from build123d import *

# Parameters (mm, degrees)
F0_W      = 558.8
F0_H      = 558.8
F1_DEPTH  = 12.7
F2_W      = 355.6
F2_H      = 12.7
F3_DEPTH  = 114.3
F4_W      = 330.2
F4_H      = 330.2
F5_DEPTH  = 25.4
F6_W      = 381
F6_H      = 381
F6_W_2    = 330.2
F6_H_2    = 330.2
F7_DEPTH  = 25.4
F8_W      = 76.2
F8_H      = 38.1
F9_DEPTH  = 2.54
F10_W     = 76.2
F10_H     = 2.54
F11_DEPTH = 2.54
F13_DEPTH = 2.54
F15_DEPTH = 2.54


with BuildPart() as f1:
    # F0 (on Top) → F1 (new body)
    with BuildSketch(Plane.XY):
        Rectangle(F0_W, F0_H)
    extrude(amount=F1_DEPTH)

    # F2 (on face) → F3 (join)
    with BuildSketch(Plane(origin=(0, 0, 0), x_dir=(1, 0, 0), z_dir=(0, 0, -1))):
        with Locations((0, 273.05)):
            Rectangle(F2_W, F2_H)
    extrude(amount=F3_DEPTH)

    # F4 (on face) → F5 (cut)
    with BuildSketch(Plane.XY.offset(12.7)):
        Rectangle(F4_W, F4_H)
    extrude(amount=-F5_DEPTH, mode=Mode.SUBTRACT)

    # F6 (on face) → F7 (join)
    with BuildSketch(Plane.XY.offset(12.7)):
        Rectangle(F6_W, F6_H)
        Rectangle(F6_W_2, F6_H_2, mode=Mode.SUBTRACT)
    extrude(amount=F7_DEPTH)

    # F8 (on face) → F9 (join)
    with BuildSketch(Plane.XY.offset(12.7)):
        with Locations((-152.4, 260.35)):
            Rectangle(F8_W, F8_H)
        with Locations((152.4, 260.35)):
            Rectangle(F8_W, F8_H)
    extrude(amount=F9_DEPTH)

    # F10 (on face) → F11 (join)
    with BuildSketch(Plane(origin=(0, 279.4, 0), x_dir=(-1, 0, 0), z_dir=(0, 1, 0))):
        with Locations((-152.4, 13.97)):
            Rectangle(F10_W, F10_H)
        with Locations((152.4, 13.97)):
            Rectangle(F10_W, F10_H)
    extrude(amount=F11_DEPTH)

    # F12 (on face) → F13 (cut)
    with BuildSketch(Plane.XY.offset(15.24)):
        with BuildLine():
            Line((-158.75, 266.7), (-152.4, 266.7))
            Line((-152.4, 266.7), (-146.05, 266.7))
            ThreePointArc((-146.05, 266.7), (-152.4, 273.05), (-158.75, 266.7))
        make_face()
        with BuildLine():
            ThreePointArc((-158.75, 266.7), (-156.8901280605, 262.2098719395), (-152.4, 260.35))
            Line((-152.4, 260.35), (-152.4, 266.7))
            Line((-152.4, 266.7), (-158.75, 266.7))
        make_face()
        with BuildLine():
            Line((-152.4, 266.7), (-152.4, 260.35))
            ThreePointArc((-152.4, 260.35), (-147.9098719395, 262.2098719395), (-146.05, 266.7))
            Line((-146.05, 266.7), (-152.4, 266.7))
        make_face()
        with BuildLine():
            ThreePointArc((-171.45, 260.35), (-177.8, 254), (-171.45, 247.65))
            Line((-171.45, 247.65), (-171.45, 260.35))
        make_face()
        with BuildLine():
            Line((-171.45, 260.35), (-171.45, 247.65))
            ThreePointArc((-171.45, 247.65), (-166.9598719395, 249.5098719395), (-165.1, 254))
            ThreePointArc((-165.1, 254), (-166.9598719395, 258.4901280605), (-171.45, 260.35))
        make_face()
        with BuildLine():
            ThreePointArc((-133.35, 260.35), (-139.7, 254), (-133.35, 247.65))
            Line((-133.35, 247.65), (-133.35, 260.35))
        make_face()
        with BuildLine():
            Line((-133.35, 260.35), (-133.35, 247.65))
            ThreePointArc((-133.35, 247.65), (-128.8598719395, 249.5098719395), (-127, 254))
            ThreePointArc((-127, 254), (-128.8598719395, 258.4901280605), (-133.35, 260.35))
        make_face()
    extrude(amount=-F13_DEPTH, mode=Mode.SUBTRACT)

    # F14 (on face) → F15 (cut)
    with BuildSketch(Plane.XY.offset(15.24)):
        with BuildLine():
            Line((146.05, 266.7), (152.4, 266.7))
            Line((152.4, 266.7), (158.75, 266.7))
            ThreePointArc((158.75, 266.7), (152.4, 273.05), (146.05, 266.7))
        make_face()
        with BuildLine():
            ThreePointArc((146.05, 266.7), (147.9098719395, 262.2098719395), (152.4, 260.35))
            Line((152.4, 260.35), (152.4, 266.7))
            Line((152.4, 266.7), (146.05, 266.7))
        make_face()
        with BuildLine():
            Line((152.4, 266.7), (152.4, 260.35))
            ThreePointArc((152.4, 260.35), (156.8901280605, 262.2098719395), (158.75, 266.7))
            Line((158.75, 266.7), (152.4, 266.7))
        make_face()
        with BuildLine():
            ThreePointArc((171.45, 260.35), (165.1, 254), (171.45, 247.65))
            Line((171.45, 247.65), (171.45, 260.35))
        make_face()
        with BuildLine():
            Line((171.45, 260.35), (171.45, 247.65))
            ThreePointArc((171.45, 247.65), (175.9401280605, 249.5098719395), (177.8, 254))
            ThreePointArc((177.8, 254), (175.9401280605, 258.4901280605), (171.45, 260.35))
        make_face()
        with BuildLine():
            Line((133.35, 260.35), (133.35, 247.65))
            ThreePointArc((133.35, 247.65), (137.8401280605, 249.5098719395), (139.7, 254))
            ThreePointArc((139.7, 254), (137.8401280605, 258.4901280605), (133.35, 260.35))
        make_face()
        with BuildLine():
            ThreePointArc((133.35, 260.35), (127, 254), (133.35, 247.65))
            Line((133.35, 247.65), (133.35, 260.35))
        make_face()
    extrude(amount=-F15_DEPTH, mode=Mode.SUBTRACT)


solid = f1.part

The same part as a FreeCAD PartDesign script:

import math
import FreeCAD as App
import Part
import Sketcher

V = App.Vector
Q = App.Units.Quantity

doc = App.newDocument("Part")
body = doc.addObject("PartDesign::Body", "Body")

# Sketch on XY plane
sketch1 = doc.addObject("Sketcher::SketchObject", "Sketch")
body.addObject(sketch1)
sketch1.AttachmentSupport = (doc.XY_Plane, [""])
sketch1.MapMode = "FlatFace"
sketch1.addGeometry([
    Part.LineSegment(V(-279.4, 279.4, 0), V(-279.4, -279.4, 0)),
    Part.LineSegment(V(-279.4, -279.4, 0), V(279.4, -279.4, 0)),
    Part.LineSegment(V(279.4, -279.4, 0), V(279.4, 279.4, 0)),
    Part.LineSegment(V(279.4, 279.4, 0), V(-279.4, 279.4, 0)),
], False)
sketch1.addConstraint([
    Sketcher.Constraint("Coincident", 0, 2, 1, 1),
    Sketcher.Constraint("Coincident", 1, 2, 2, 1),
    Sketcher.Constraint("Coincident", 2, 2, 3, 1),
    Sketcher.Constraint("Coincident", 3, 2, 0, 1),
    Sketcher.Constraint("Vertical", 0),
    Sketcher.Constraint("Horizontal", 1),
    Sketcher.Constraint("Vertical", 2),
    Sketcher.Constraint("Horizontal", 3),
    Sketcher.Constraint("Symmetric", 0, 2, 2, 2, -1, 1),
    Sketcher.Constraint("Equal", 3, 0),
    Sketcher.Constraint("DistanceX", 1, 1, 1, 2, Q("22 in")),
])
pad1 = doc.addObject("PartDesign::Pad", "Pad")
body.addObject(pad1)
pad1.Profile = sketch1
pad1.Length = Q("0.5 in")

# Sketch on XY plane
sketch2 = doc.addObject("Sketcher::SketchObject", "Sketch001")
body.addObject(sketch2)
sketch2.AttachmentSupport = (doc.XY_Plane, [""])
sketch2.MapMode = "FlatFace"
sketch2.addGeometry([
    Part.LineSegment(V(-177.8, -279.4, 0), V(-177.8, -266.7, 0)),
    Part.LineSegment(V(-177.8, -266.7, 0), V(177.8, -266.7, 0)),
    Part.LineSegment(V(177.8, -266.7, 0), V(177.8, -279.4, 0)),
    Part.LineSegment(V(177.8, -279.4, 0), V(-177.8, -279.4, 0)),
], False)
sketch2.addConstraint([
    Sketcher.Constraint("Coincident", 0, 2, 1, 1),
    Sketcher.Constraint("Coincident", 1, 2, 2, 1),
    Sketcher.Constraint("Coincident", 2, 2, 3, 1),
    Sketcher.Constraint("Coincident", 3, 2, 0, 1),
    Sketcher.Constraint("Vertical", 0),
    Sketcher.Constraint("Horizontal", 1),
    Sketcher.Constraint("Vertical", 2),
    Sketcher.Constraint("Horizontal", 3),
    Sketcher.Constraint("DistanceX", 1, 1, 1, 2, Q("14 in")),
    Sketcher.Constraint("DistanceY", 0, 1, 0, 2, Q("0.5 in")),
    Sketcher.Constraint("DistanceX", 0, 2, -1, 1, Q("7 in")),
    Sketcher.Constraint("DistanceY", 2, 2, -1, 1, Q("11 in")),
])
pad2 = doc.addObject("PartDesign::Pad", "Pad001")
body.addObject(pad2)
pad2.Profile = sketch2
pad2.Length = Q("4.5 in")
pad2.Reversed = True

# Sketch on XY plane
sketch3 = doc.addObject("Sketcher::SketchObject", "Sketch002")
body.addObject(sketch3)
sketch3.AttachmentSupport = (doc.XY_Plane, [""])
sketch3.MapMode = "FlatFace"
sketch3.AttachmentOffset = App.Placement(V(0, 0, 0.5 * 25.4), App.Rotation())
sketch3.addGeometry([
    Part.LineSegment(V(-165.1, 165.1, 0), V(-165.1, -165.1, 0)),
    Part.LineSegment(V(-165.1, -165.1, 0), V(165.1, -165.1, 0)),
    Part.LineSegment(V(165.1, -165.1, 0), V(165.1, 165.1, 0)),
    Part.LineSegment(V(165.1, 165.1, 0), V(-165.1, 165.1, 0)),
], False)
sketch3.addConstraint([
    Sketcher.Constraint("Coincident", 0, 2, 1, 1),
    Sketcher.Constraint("Coincident", 1, 2, 2, 1),
    Sketcher.Constraint("Coincident", 2, 2, 3, 1),
    Sketcher.Constraint("Coincident", 3, 2, 0, 1),
    Sketcher.Constraint("Vertical", 0),
    Sketcher.Constraint("Horizontal", 1),
    Sketcher.Constraint("Vertical", 2),
    Sketcher.Constraint("Horizontal", 3),
    Sketcher.Constraint("Symmetric", 0, 2, 2, 2, -1, 1),
    Sketcher.Constraint("Equal", 3, 0),
    Sketcher.Constraint("DistanceX", 1, 1, 1, 2, Q("13 in")),
])
pocket1 = doc.addObject("PartDesign::Pocket", "Pocket")
body.addObject(pocket1)
pocket1.Profile = sketch3
pocket1.Length = Q("1 in")

# Sketch on XY plane
sketch4 = doc.addObject("Sketcher::SketchObject", "Sketch003")
body.addObject(sketch4)
sketch4.AttachmentSupport = (doc.XY_Plane, [""])
sketch4.MapMode = "FlatFace"
sketch4.AttachmentOffset = App.Placement(V(0, 0, 0.5 * 25.4), App.Rotation())
sketch4.addGeometry([
    Part.LineSegment(V(-190.5, 190.5, 0), V(-190.5, -190.5, 0)),  # 0
    Part.LineSegment(V(-190.5, -190.5, 0), V(190.5, -190.5, 0)),  # 1
    Part.LineSegment(V(190.5, -190.5, 0), V(190.5, 190.5, 0)),  # 2
    Part.LineSegment(V(190.5, 190.5, 0), V(-190.5, 190.5, 0)),  # 3
    Part.LineSegment(V(165.1, -165.1, 0), V(-165.1, -165.1, 0)),  # 4
    Part.LineSegment(V(-165.1, -165.1, 0), V(-165.1, 165.1, 0)),  # 5
    Part.LineSegment(V(-165.1, 165.1, 0), V(165.1, 165.1, 0)),  # 6
    Part.LineSegment(V(165.1, 165.1, 0), V(165.1, -165.1, 0)),  # 7
], False)
sketch4.addConstraint([
    Sketcher.Constraint("Coincident", 0, 2, 1, 1),
    Sketcher.Constraint("Coincident", 1, 2, 2, 1),
    Sketcher.Constraint("Coincident", 2, 2, 3, 1),
    Sketcher.Constraint("Coincident", 3, 2, 0, 1),
    Sketcher.Constraint("Coincident", 4, 2, 5, 1),
    Sketcher.Constraint("Coincident", 5, 2, 6, 1),
    Sketcher.Constraint("Coincident", 6, 2, 7, 1),
    Sketcher.Constraint("Coincident", 7, 2, 4, 1),
    Sketcher.Constraint("Vertical", 0),
    Sketcher.Constraint("Horizontal", 1),
    Sketcher.Constraint("Vertical", 2),
    Sketcher.Constraint("Horizontal", 3),
    Sketcher.Constraint("Horizontal", 4),
    Sketcher.Constraint("Vertical", 5),
    Sketcher.Constraint("Horizontal", 6),
    Sketcher.Constraint("Vertical", 7),
    Sketcher.Constraint("Symmetric", 0, 2, 2, 2, -1, 1),
    Sketcher.Constraint("Symmetric", 4, 2, 6, 2, -1, 1),
    Sketcher.Constraint("Equal", 3, 0),
    Sketcher.Constraint("Equal", 6, 5),
    Sketcher.Constraint("DistanceX", 1, 1, 1, 2, Q("15 in")),
    Sketcher.Constraint("DistanceX", 4, 2, 4, 1, Q("13 in")),
])
pad3 = doc.addObject("PartDesign::Pad", "Pad002")
body.addObject(pad3)
pad3.Profile = sketch4
pad3.Length = Q("1 in")

# Sketch on XY plane
sketch5 = doc.addObject("Sketcher::SketchObject", "Sketch004")
body.addObject(sketch5)
sketch5.AttachmentSupport = (doc.XY_Plane, [""])
sketch5.MapMode = "FlatFace"
sketch5.AttachmentOffset = App.Placement(V(0, 0, 0.5 * 25.4), App.Rotation())
sketch5.addGeometry([
    Part.LineSegment(V(-190.5, 279.4, 0), V(-190.5, 241.3, 0)),  # 0
    Part.LineSegment(V(-190.5, 241.3, 0), V(-114.3, 241.3, 0)),  # 1
    Part.LineSegment(V(-114.3, 241.3, 0), V(-114.3, 279.4, 0)),  # 2
    Part.LineSegment(V(-114.3, 279.4, 0), V(-190.5, 279.4, 0)),  # 3
    Part.LineSegment(V(114.3, 279.4, 0), V(114.3, 241.3, 0)),  # 4
    Part.LineSegment(V(114.3, 241.3, 0), V(190.5, 241.3, 0)),  # 5
    Part.LineSegment(V(190.5, 241.3, 0), V(190.5, 279.4, 0)),  # 6
    Part.LineSegment(V(190.5, 279.4, 0), V(114.3, 279.4, 0)),  # 7
], False)
sketch5.addConstraint([
    Sketcher.Constraint("Coincident", 0, 2, 1, 1),
    Sketcher.Constraint("Coincident", 1, 2, 2, 1),
    Sketcher.Constraint("Coincident", 2, 2, 3, 1),
    Sketcher.Constraint("Coincident", 3, 2, 0, 1),
    Sketcher.Constraint("Coincident", 4, 2, 5, 1),
    Sketcher.Constraint("Coincident", 5, 2, 6, 1),
    Sketcher.Constraint("Coincident", 6, 2, 7, 1),
    Sketcher.Constraint("Coincident", 7, 2, 4, 1),
    Sketcher.Constraint("Vertical", 0),
    Sketcher.Constraint("Horizontal", 1),
    Sketcher.Constraint("Vertical", 2),
    Sketcher.Constraint("Horizontal", 3),
    Sketcher.Constraint("Vertical", 4),
    Sketcher.Constraint("Horizontal", 5),
    Sketcher.Constraint("Vertical", 6),
    Sketcher.Constraint("Horizontal", 7),
    Sketcher.Constraint("Symmetric", 1, 2, 4, 2, -2),
    Sketcher.Constraint("Symmetric", 3, 2, 6, 2, -2),
    Sketcher.Constraint("DistanceX", 1, 1, 1, 2, Q("3 in")),
    Sketcher.Constraint("DistanceY", 0, 2, 0, 1, Q("1.5 in")),
    Sketcher.Constraint("DistanceY", -1, 1, 2, 2, Q("11 in")),
    Sketcher.Constraint("DistanceX", 1, 2, 4, 2, Q("9 in")),
])
pad4 = doc.addObject("PartDesign::Pad", "Pad003")
body.addObject(pad4)
pad4.Profile = sketch5
pad4.Length = Q("0.1 in")

# Sketch on XZ plane
sketch6 = doc.addObject("Sketcher::SketchObject", "Sketch005")
body.addObject(sketch6)
sketch6.AttachmentSupport = (doc.XZ_Plane, [""])
sketch6.MapMode = "FlatFace"
sketch6.AttachmentOffset = App.Placement(V(0, 0, -11 * 25.4), App.Rotation())
sketch6.addGeometry([
    Part.LineSegment(V(190.5, 15.24, 0), V(190.5, 12.7, 0)),  # 0
    Part.LineSegment(V(190.5, 12.7, 0), V(114.3, 12.7, 0)),  # 1
    Part.LineSegment(V(114.3, 12.7, 0), V(114.3, 15.24, 0)),  # 2
    Part.LineSegment(V(114.3, 15.24, 0), V(190.5, 15.24, 0)),  # 3
    Part.LineSegment(V(-114.3, 15.24, 0), V(-114.3, 12.7, 0)),  # 4
    Part.LineSegment(V(-114.3, 12.7, 0), V(-190.5, 12.7, 0)),  # 5
    Part.LineSegment(V(-190.5, 12.7, 0), V(-190.5, 15.24, 0)),  # 6
    Part.LineSegment(V(-190.5, 15.24, 0), V(-114.3, 15.24, 0)),  # 7
], False)
sketch6.addConstraint([
    Sketcher.Constraint("Coincident", 0, 2, 1, 1),
    Sketcher.Constraint("Coincident", 1, 2, 2, 1),
    Sketcher.Constraint("Coincident", 2, 2, 3, 1),
    Sketcher.Constraint("Coincident", 3, 2, 0, 1),
    Sketcher.Constraint("Coincident", 4, 2, 5, 1),
    Sketcher.Constraint("Coincident", 5, 2, 6, 1),
    Sketcher.Constraint("Coincident", 6, 2, 7, 1),
    Sketcher.Constraint("Coincident", 7, 2, 4, 1),
    Sketcher.Constraint("Vertical", 0),
    Sketcher.Constraint("Horizontal", 1),
    Sketcher.Constraint("Vertical", 2),
    Sketcher.Constraint("Horizontal", 3),
    Sketcher.Constraint("Vertical", 4),
    Sketcher.Constraint("Horizontal", 5),
    Sketcher.Constraint("Vertical", 6),
    Sketcher.Constraint("Horizontal", 7),
    Sketcher.Constraint("Symmetric", 1, 2, 4, 2, -2),
    Sketcher.Constraint("Symmetric", 3, 2, 6, 2, -2),
    Sketcher.Constraint("DistanceX", 1, 2, 1, 1, Q("3 in")),
    Sketcher.Constraint("DistanceY", 0, 2, 0, 1, Q("0.1 in")),
    Sketcher.Constraint("DistanceX", 4, 2, 1, 2, Q("9 in")),
    Sketcher.Constraint("DistanceY", -1, 1, 0, 2, Q("0.5 in")),
])
pad5 = doc.addObject("PartDesign::Pad", "Pad004")
body.addObject(pad5)
pad5.Profile = sketch6
pad5.Length = Q("0.1 in")
pad5.Reversed = True

# Sketch on XY plane
sketch7 = doc.addObject("Sketcher::SketchObject", "Sketch006")
body.addObject(sketch7)
sketch7.AttachmentSupport = (doc.XY_Plane, [""])
sketch7.MapMode = "FlatFace"
sketch7.AttachmentOffset = App.Placement(V(0, 0, 0.6 * 25.4), App.Rotation())
sketch7.addGeometry([
    Part.ArcOfCircle(Part.Circle(V(-152.4, 266.7, 0), V(0, 0, 1), 6.35), math.radians(0), math.radians(180)),  # 0
    Part.ArcOfCircle(Part.Circle(V(-152.4, 266.7, 0), V(0, 0, 1), 6.35), math.radians(180), math.radians(270)),  # 1
    Part.ArcOfCircle(Part.Circle(V(-152.4, 266.7, 0), V(0, 0, 1), 6.35), math.radians(-90), math.radians(0)),  # 2
    Part.ArcOfCircle(Part.Circle(V(-171.45, 254, 0), V(0, 0, 1), 6.35), math.radians(90), math.radians(270)),  # 3
    Part.ArcOfCircle(Part.Circle(V(-171.45, 254, 0), V(0, 0, 1), 6.35), math.radians(-90), math.radians(0)),  # 4
    Part.ArcOfCircle(Part.Circle(V(-171.45, 254, 0), V(0, 0, 1), 6.35), math.radians(0), math.radians(90)),  # 5
    Part.ArcOfCircle(Part.Circle(V(-133.35, 254, 0), V(0, 0, 1), 6.35), math.radians(90), math.radians(270)),  # 6
    Part.ArcOfCircle(Part.Circle(V(-133.35, 254, 0), V(0, 0, 1), 6.35), math.radians(-90), math.radians(0)),  # 7
    Part.ArcOfCircle(Part.Circle(V(-133.35, 254, 0), V(0, 0, 1), 6.35), math.radians(0), math.radians(90)),  # 8
], False)
sketch7.addConstraint([
    Sketcher.Constraint("Tangent", 0, 2, 1, 1),
    Sketcher.Constraint("Tangent", 1, 2, 2, 1),
    Sketcher.Constraint("Tangent", 2, 2, 0, 1),
    Sketcher.Constraint("Tangent", 3, 2, 4, 1),
    Sketcher.Constraint("Tangent", 4, 2, 5, 1),
    Sketcher.Constraint("Tangent", 5, 2, 3, 1),
    Sketcher.Constraint("Tangent", 6, 2, 7, 1),
    Sketcher.Constraint("Tangent", 7, 2, 8, 1),
    Sketcher.Constraint("Tangent", 8, 2, 6, 1),
    Sketcher.Constraint("Equal", 2, 3),
    Sketcher.Constraint("Equal", 5, 6),
    Sketcher.Constraint("Horizontal", 5, 3, 6, 3),
    Sketcher.Constraint("Horizontal", 2, 3, 0, 2),
    Sketcher.Constraint("Horizontal", 0, 2, 2, 2),
    Sketcher.Constraint("Horizontal", 8, 3, 4, 2),
    Sketcher.Constraint("Horizontal", 1, 2, 5, 2),
    Sketcher.Constraint("Horizontal", 4, 2, 7, 2),
    Sketcher.Constraint("Vertical", 2, 3, 1, 2),
    Sketcher.Constraint("Vertical", 5, 3, 3, 2),
    Sketcher.Constraint("Vertical", 3, 2, 5, 2),
    Sketcher.Constraint("Vertical", 8, 3, 6, 2),
    Sketcher.Constraint("Vertical", 6, 2, 8, 2),
    Sketcher.Constraint("Radius", 0, Q("0.25 in")),
    Sketcher.Constraint("DistanceX", 0, 3, -1, 1, Q("6 in")),
    Sketcher.Constraint("DistanceY", -1, 1, 3, 3, Q("10 in")),
    Sketcher.Constraint("DistanceX", 7, 2, -1, 1, Q("5 in")),
    Sketcher.Constraint("DistanceX", 4, 2, -1, 1, Q("6.5 in")),
])
pocket2 = doc.addObject("PartDesign::Pocket", "Pocket001")
body.addObject(pocket2)
pocket2.Profile = sketch7
pocket2.Length = Q("0.1 in")

# Sketch on XY plane
sketch8 = doc.addObject("Sketcher::SketchObject", "Sketch007")
body.addObject(sketch8)
sketch8.AttachmentSupport = (doc.XY_Plane, [""])
sketch8.MapMode = "FlatFace"
sketch8.AttachmentOffset = App.Placement(V(0, 0, 0.6 * 25.4), App.Rotation())
sketch8.addGeometry([
    Part.ArcOfCircle(Part.Circle(V(152.4, 266.7, 0), V(0, 0, 1), 6.35), math.radians(0), math.radians(180)),  # 0
    Part.ArcOfCircle(Part.Circle(V(152.4, 266.7, 0), V(0, 0, 1), 6.35), math.radians(180), math.radians(270)),  # 1
    Part.ArcOfCircle(Part.Circle(V(152.4, 266.7, 0), V(0, 0, 1), 6.35), math.radians(-90), math.radians(0)),  # 2
    Part.ArcOfCircle(Part.Circle(V(171.45, 254, 0), V(0, 0, 1), 6.35), math.radians(90), math.radians(270)),  # 3
    Part.ArcOfCircle(Part.Circle(V(171.45, 254, 0), V(0, 0, 1), 6.35), math.radians(-90), math.radians(0)),  # 4
    Part.ArcOfCircle(Part.Circle(V(171.45, 254, 0), V(0, 0, 1), 6.35), math.radians(0), math.radians(90)),  # 5
    Part.ArcOfCircle(Part.Circle(V(133.35, 254, 0), V(0, 0, 1), 6.35), math.radians(-90), math.radians(0)),  # 6
    Part.ArcOfCircle(Part.Circle(V(133.35, 254, 0), V(0, 0, 1), 6.35), math.radians(0), math.radians(90)),  # 7
    Part.ArcOfCircle(Part.Circle(V(133.35, 254, 0), V(0, 0, 1), 6.35), math.radians(90), math.radians(270)),  # 8
], False)
sketch8.addConstraint([
    Sketcher.Constraint("Tangent", 0, 2, 1, 1),
    Sketcher.Constraint("Tangent", 1, 2, 2, 1),
    Sketcher.Constraint("Tangent", 2, 2, 0, 1),
    Sketcher.Constraint("Tangent", 3, 2, 4, 1),
    Sketcher.Constraint("Tangent", 4, 2, 5, 1),
    Sketcher.Constraint("Tangent", 5, 2, 3, 1),
    Sketcher.Constraint("Tangent", 6, 2, 7, 1),
    Sketcher.Constraint("Tangent", 7, 2, 8, 1),
    Sketcher.Constraint("Tangent", 8, 2, 6, 1),
    Sketcher.Constraint("Equal", 2, 3),
    Sketcher.Constraint("Equal", 5, 6),
    Sketcher.Constraint("Horizontal", 5, 3, 6, 3),
    Sketcher.Constraint("Horizontal", 2, 3, 0, 2),
    Sketcher.Constraint("Horizontal", 0, 2, 2, 2),
    Sketcher.Constraint("Horizontal", 8, 3, 4, 2),
    Sketcher.Constraint("Horizontal", 1, 2, 5, 2),
    Sketcher.Constraint("Horizontal", 4, 2, 6, 2),
    Sketcher.Constraint("Vertical", 2, 3, 1, 2),
    Sketcher.Constraint("Vertical", 5, 3, 3, 2),
    Sketcher.Constraint("Vertical", 3, 2, 5, 2),
    Sketcher.Constraint("Vertical", 8, 3, 7, 2),
    Sketcher.Constraint("Vertical", 7, 2, 8, 2),
    Sketcher.Constraint("Radius", 0, Q("0.25 in")),
    Sketcher.Constraint("DistanceX", -1, 1, 0, 3, Q("6 in")),
    Sketcher.Constraint("DistanceY", -1, 1, 3, 3, Q("10 in")),
    Sketcher.Constraint("DistanceX", -1, 1, 4, 2, Q("7 in")),
    Sketcher.Constraint("DistanceX", -1, 1, 6, 2, Q("5.5 in")),
])
pocket3 = doc.addObject("PartDesign::Pocket", "Pocket002")
body.addObject(pocket3)
pocket3.Profile = sketch8
pocket3.Length = Q("0.1 in")

doc.recompute()
